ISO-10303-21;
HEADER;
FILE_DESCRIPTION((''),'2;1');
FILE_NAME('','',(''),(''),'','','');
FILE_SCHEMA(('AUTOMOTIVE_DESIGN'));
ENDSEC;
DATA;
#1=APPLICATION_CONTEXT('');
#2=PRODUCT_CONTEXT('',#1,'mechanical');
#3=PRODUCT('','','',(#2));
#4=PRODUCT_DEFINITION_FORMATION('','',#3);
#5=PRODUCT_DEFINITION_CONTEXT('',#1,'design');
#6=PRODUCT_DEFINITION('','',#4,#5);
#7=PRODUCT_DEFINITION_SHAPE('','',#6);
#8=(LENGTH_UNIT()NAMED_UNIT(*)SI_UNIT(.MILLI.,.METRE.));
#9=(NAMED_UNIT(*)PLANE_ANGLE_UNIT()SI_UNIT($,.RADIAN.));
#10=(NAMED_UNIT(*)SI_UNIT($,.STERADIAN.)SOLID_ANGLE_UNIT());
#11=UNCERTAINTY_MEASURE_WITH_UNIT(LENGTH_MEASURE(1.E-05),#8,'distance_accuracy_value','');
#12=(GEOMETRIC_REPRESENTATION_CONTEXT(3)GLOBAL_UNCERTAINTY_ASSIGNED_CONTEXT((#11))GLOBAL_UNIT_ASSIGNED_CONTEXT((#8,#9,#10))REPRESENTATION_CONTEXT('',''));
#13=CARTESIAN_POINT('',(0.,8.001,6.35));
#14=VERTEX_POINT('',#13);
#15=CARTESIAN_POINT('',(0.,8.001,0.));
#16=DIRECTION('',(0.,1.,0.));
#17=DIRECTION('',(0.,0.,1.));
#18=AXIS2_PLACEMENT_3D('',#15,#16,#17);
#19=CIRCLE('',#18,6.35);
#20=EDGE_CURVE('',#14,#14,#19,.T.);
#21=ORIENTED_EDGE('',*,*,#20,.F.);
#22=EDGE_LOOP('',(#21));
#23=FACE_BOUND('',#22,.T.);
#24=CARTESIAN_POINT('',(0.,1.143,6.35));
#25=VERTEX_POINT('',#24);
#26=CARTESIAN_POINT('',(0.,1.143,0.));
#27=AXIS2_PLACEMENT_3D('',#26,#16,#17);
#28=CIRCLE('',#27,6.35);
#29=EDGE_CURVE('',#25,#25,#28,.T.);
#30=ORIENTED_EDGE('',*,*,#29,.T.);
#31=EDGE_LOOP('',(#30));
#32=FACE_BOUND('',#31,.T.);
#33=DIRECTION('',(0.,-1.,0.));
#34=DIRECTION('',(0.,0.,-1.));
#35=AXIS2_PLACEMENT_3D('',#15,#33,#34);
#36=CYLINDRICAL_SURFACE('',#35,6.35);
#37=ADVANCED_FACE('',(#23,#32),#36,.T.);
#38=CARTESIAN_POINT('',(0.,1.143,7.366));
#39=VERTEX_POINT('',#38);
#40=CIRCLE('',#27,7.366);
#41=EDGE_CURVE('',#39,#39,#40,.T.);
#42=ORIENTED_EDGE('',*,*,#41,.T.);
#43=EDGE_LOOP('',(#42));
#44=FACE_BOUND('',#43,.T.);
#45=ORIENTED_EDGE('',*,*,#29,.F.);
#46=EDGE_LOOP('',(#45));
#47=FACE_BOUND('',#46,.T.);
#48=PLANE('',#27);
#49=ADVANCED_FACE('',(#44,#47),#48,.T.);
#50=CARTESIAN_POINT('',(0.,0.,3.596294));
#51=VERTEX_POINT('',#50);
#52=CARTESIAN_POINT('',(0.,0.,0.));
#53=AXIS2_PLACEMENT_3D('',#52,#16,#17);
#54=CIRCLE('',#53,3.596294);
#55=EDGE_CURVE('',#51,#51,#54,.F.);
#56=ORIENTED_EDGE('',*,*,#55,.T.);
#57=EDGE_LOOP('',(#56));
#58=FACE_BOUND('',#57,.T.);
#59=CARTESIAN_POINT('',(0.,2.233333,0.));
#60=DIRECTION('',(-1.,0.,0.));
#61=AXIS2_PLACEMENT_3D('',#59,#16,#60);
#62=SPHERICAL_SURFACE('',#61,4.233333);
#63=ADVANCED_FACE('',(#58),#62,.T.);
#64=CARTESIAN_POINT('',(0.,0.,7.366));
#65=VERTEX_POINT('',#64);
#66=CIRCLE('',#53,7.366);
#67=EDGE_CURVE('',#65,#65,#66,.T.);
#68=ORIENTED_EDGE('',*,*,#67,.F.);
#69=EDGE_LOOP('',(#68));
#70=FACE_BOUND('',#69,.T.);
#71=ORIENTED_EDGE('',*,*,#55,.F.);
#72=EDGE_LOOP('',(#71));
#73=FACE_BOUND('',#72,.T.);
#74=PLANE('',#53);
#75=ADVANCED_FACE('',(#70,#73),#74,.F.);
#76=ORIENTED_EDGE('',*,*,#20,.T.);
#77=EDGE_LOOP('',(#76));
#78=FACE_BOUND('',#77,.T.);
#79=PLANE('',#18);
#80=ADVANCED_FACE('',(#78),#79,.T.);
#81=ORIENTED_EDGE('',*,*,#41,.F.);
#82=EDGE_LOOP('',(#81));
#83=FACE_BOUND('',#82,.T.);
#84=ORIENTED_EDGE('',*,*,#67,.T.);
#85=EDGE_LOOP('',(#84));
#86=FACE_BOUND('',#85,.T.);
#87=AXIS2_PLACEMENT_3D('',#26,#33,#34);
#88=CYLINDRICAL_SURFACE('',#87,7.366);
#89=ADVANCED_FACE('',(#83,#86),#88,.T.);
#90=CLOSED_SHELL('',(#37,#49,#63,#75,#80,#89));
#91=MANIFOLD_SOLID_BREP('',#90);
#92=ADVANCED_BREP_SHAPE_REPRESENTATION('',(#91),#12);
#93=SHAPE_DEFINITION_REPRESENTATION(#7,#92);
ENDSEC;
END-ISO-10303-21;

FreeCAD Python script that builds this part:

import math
import FreeCAD as App
import Part
import Sketcher
from FreeCAD import Vector
Q = App.Units.Quantity

doc = App.newDocument("Part")
body = doc.addObject("PartDesign::Body", "Body")

# Sketch on XZ plane
sketch1 = body.newObject("Sketcher::SketchObject", "Sketch")
sketch1.AttachmentSupport = (doc.getObject("XZ_Plane"), [""])
sketch1.MapMode = "FlatFace"
sketch1.addGeometry(Part.Circle(Vector(0, 0, 0), Vector(0, 0, 1), 6.35), False)
sketch1.addConstraint([
    Sketcher.Constraint("Coincident", 0, 3, -1, 1),
    Sketcher.Constraint("Diameter", 0, Q("0.5 in")),
])
pad1 = body.newObject("PartDesign::Pad", "Pad")
pad1.Profile = sketch1
pad1.Length = Q("0.315 in")
pad1.Reversed = True

# Sketch on XZ plane
sketch2 = body.newObject("Sketcher::SketchObject", "Sketch001")
sketch2.AttachmentSupport = (doc.getObject("XZ_Plane"), [""])
sketch2.MapMode = "FlatFace"
sketch2.addGeometry([
    Part.Circle(Vector(0, 0, 0), Vector(0, 0, 1), 7.366),
    Part.Circle(Vector(0, 0, 0), Vector(0, 0, 1), 6.35),
], False)
sketch2.addConstraint([
    Sketcher.Constraint("Coincident", 0, 3, -1, 1),
    Sketcher.Constraint("Coincident", 1, 3, -1, 1),
    Sketcher.Constraint("Diameter", 1, Q("0.5 in")),
    Sketcher.Constraint("Diameter", 0, Q("0.58 in")),
])
pad2 = body.newObject("PartDesign::Pad", "Pad001")
pad2.Profile = sketch2
pad2.Length = Q("0.045 in")
pad2.Reversed = True

# Sketch on XY plane
sketch3 = body.newObject("Sketcher::SketchObject", "Sketch002")
sketch3.AttachmentSupport = (doc.getObject("XY_Plane"), [""])
sketch3.MapMode = "FlatFace"
sketch3.addGeometry([
    Part.LineSegment(Vector(3.596294, 0, 0), Vector(0, 0, 0)),
    Part.LineSegment(Vector(0, 0, 0), Vector(0, -2, 0)),
    Part.ArcOfCircle(Part.Circle(Vector(0, 2.233333, 0), Vector(0, 0, 1), 4.233333), math.radians(-90), math.radians(-31.840678)),
], False)
sketch3.addConstraint([
    Sketcher.Constraint("Coincident", 0, 2, 1, 1),
    Sketcher.Constraint("Coincident", 1, 2, 2, 1),
    Sketcher.Constraint("Coincident", 2, 2, 0, 1),
    Sketcher.Constraint("Horizontal", 0),
    Sketcher.Constraint("Vertical", 1),
    Sketcher.Constraint("Coincident", 0, 2, -1, 1),
    Sketcher.Constraint("PointOnObject", 2, 3, -2),
    Sketcher.Constraint("DistanceY", 1, 2, 1, 1, 2.0),
    Sketcher.Constraint("Radius", 2, 4.233333),
])
revolution = body.newObject("PartDesign::Revolution", "Revolution")
revolution.Profile = sketch3
revolution.ReferenceAxis = (sketch3, ["V_Axis"])
revolution.Angle = 360

doc.recompute()
